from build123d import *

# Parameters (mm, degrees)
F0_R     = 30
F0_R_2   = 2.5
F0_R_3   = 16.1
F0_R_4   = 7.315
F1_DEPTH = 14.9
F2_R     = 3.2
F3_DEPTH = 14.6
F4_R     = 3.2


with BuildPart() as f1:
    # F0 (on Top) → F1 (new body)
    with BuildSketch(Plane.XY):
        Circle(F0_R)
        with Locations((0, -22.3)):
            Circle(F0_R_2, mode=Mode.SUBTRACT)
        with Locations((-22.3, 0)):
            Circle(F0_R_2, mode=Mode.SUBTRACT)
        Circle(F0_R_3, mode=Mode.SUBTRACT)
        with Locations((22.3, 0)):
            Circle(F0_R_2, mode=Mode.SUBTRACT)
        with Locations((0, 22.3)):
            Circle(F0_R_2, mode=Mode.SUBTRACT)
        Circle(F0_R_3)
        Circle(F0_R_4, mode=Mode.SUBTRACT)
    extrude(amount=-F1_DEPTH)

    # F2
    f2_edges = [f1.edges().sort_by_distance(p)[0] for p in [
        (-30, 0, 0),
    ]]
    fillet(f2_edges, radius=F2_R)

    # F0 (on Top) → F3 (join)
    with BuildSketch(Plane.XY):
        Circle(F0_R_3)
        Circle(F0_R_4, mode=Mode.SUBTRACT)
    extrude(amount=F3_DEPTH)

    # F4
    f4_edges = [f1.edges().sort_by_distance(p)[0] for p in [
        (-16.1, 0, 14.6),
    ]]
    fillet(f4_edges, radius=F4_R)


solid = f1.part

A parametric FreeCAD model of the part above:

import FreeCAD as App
import Part
import Sketcher


def edges_at(feature, points):
    """Names of the edges that pass closest to the given points."""
    edges = feature.Shape.Edges
    near = lambda p: min(range(len(edges)), key=lambda i: edges[i].distToShape(Part.Vertex(*p))[0])
    return sorted({f"Edge{near(p) + 1}" for p in points})

doc = App.newDocument("Part")
params = doc.addObject("Spreadsheet::Sheet", "Params")
for row, (alias, value) in enumerate([
    ("sketch1_diameter", "60 mm"),
    ("sketch1_diameter2", "5 mm"),
    ("sketch1_diameter3", "14.63 mm"),
    ("pad1_length", "14.9 mm"),
    ("fillet_radius", "3.2 mm"),
    ("sketch2_diameter", "32.2 mm"),
    ("sketch2_diameter2", "14.63 mm"),
    ("pad2_length", "14.6 mm"),
    ("fillet2_radius", "3.2 mm"),
], start=1):
    params.set(f"A{row}", alias)
    params.set(f"B{row}", "=" + value)
    params.setAlias(f"B{row}", alias)

body = doc.addObject("PartDesign::Body", "Body")

sketch1 = body.newObject("Sketcher::SketchObject", "Sketch")
sketch1.AttachmentSupport = (doc.getObject("XY_Plane"), [""])
sketch1.MapMode = "FlatFace"
sketch1.addGeometry(Part.Circle(App.Vector(0, 0, 0), App.Vector(0, 0, 1), 30), False)
sketch1.addGeometry(Part.Circle(App.Vector(0, -22.3, 0), App.Vector(0, 0, 1), 2.5), False)
sketch1.addGeometry(Part.Circle(App.Vector(-22.3, 0, 0), App.Vector(0, 0, 1), 2.5), False)
sketch1.addGeometry(Part.Circle(App.Vector(0, 0, 0), App.Vector(0, 0, 1), 7.315), False)
sketch1.addGeometry(Part.Circle(App.Vector(22.3, 0, 0), App.Vector(0, 0, 1), 2.5), False)
sketch1.addGeometry(Part.Circle(App.Vector(0, 22.3, 0), App.Vector(0, 0, 1), 2.5), False)
sketch1.addConstraint(Sketcher.Constraint("Coincident", 0, 3, -1, 1))
sketch1.addConstraint(Sketcher.Constraint("Coincident", 3, 3, -1, 1))
sketch1.addConstraint(Sketcher.Constraint("Equal", 1, 2))
sketch1.addConstraint(Sketcher.Constraint("Equal", 2, 4))
sketch1.addConstraint(Sketcher.Constraint("Equal", 4, 5))
sketch1.addConstraint(Sketcher.Constraint("Symmetric", 2, 3, 4, 3, -1, 1))
sketch1.addConstraint(Sketcher.Constraint("Symmetric", 1, 3, 5, 3, -1, 1))
sketch1.addConstraint(Sketcher.Constraint("PointOnObject", 1, 3, -2))
sketch1.addConstraint(Sketcher.Constraint("PointOnObject", 2, 3, -1))
sketch1.addConstraint(Sketcher.Constraint("Diameter", 0, 60.0))
sketch1.addConstraint(Sketcher.Constraint("Diameter", 1, 5.0))
sketch1.addConstraint(Sketcher.Constraint("Diameter", 3, 14.63))
sketch1.addConstraint(Sketcher.Constraint("DistanceY", 1, 3, -1, 1, 22.3))
sketch1.addConstraint(Sketcher.Constraint("DistanceX", 2, 3, -1, 1, 22.3))
sketch1.setExpression("Constraints[9]", "Params.sketch1_diameter")
sketch1.setExpression("Constraints[10]", "Params.sketch1_diameter2")
sketch1.setExpression("Constraints[11]", "Params.sketch1_diameter3")
pad1 = body.newObject("PartDesign::Pad", "Pad")
pad1.Profile = sketch1
pad1.setExpression("Length", "Params.pad1_length")
pad1.Reversed = True
doc.recompute()

fillet = body.newObject("PartDesign::Fillet", "Fillet")
fillet.Base = (pad1, edges_at(pad1, [(-30, 0, 0)]))
fillet.setExpression("Radius", "Params.fillet_radius")

sketch2 = body.newObject("Sketcher::SketchObject", "Sketch001")
sketch2.AttachmentSupport = (doc.getObject("XY_Plane"), [""])
sketch2.MapMode = "FlatFace"
sketch2.addGeometry(Part.Circle(App.Vector(0, 0, 0), App.Vector(0, 0, 1), 16.1), False)
sketch2.addGeometry(Part.Circle(App.Vector(0, 0, 0), App.Vector(0, 0, 1), 7.315), False)
sketch2.addConstraint(Sketcher.Constraint("Coincident", 0, 3, -1, 1))
sketch2.addConstraint(Sketcher.Constraint("Coincident", 1, 3, -1, 1))
sketch2.addConstraint(Sketcher.Constraint("Diameter", 0, 32.2))
sketch2.addConstraint(Sketcher.Constraint("Diameter", 1, 14.63))
sketch2.setExpression("Constraints[2]", "Params.sketch2_diameter")
sketch2.setExpression("Constraints[3]", "Params.sketch2_diameter2")
pad2 = body.newObject("PartDesign::Pad", "Pad001")
pad2.Profile = sketch2
pad2.setExpression("Length", "Params.pad2_length")
doc.recompute()

fillet2 = body.newObject("PartDesign::Fillet", "Fillet001")
fillet2.Base = (pad2, edges_at(pad2, [(-16.1, 0, 14.6)]))
fillet2.setExpression("Radius", "Params.fillet2_radius")

doc.recompute()
